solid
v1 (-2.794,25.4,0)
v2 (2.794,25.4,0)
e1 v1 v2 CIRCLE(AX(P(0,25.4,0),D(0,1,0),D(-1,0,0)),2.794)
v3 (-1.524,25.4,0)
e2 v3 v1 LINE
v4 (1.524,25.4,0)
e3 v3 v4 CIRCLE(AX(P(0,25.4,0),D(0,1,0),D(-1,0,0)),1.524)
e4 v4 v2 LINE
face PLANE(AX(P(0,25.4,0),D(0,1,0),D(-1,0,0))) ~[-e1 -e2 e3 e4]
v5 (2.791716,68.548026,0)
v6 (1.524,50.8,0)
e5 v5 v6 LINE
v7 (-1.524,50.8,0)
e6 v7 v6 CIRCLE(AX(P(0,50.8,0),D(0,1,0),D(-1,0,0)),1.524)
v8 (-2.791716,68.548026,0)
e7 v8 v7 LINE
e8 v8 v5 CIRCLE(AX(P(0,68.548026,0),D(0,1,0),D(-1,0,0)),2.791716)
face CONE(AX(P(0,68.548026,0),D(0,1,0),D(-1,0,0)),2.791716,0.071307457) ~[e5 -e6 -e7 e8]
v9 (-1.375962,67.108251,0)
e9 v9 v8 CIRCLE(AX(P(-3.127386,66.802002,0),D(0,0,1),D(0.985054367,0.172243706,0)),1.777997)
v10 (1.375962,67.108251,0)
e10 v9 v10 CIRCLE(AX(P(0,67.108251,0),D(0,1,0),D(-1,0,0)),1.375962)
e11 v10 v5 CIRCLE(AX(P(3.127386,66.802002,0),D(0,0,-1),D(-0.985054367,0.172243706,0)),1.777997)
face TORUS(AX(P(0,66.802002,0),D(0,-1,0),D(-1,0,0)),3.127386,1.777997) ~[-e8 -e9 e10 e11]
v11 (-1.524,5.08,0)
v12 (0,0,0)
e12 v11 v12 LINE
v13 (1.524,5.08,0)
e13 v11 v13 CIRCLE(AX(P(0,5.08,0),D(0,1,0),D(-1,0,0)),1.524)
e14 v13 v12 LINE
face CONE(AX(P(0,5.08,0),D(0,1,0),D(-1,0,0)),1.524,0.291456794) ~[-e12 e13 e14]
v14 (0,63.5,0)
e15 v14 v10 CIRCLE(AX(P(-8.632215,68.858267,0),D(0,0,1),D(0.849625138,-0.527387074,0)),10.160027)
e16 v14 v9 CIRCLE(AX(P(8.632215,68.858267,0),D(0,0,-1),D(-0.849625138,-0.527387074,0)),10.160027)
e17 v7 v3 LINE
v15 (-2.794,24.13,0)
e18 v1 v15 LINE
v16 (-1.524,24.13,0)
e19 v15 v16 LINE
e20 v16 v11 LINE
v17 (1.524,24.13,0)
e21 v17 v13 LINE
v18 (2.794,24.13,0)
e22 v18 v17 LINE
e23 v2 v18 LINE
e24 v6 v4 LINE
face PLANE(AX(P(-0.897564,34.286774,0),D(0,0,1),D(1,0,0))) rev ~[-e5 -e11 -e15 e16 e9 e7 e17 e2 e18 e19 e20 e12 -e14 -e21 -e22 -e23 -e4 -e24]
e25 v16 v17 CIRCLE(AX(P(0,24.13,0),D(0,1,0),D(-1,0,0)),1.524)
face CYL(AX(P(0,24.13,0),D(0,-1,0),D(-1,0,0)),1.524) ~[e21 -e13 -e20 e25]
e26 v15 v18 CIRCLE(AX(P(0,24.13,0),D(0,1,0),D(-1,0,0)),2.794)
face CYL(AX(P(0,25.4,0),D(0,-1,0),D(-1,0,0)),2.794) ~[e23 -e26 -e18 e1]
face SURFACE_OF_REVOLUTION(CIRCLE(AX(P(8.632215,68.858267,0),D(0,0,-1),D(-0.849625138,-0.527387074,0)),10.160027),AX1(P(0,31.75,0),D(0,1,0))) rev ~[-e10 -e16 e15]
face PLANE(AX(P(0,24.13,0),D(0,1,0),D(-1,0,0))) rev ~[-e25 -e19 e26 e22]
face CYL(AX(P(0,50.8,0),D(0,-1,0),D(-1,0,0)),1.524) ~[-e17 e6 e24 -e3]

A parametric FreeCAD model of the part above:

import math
import FreeCAD as App
import Part
import Sketcher
Q = App.Units.Quantity

doc = App.newDocument("Part")
body = doc.addObject("PartDesign::Body", "Body")

# Sketch on XY plane
sketch1 = body.newObject("Sketcher::SketchObject", "Sketch")
sketch1.AttachmentSupport = (doc.getObject("XY_Plane"), [""])
sketch1.MapMode = "FlatFace"
sketch1.addGeometry([
    Part.LineSegment(App.Vector(-1.524, 5.08, 0), App.Vector(0, 0, 0)),  # 0
    Part.LineSegment(App.Vector(0, 0, 0), App.Vector(0, 63.5, 0)),  # 1
    Part.ArcOfCircle(Part.Circle(App.Vector(8.632215, 68.858267, 0), App.Vector(0, 0, 1), 10.160027), math.radians(-170.081613), math.radians(-148.170921)),  # 2
    Part.ArcOfCircle(Part.Circle(App.Vector(-3.127386, 66.802002, 0), App.Vector(0, 0, 1), 1.777997), math.radians(9.918299), math.radians(79.117768)),  # 3
    Part.LineSegment(App.Vector(-2.791716, 68.548026, 0), App.Vector(-1.524, 50.8, 0)),  # 4
    Part.LineSegment(App.Vector(-1.524, 50.8, 0), App.Vector(-1.524, 25.4, 0)),  # 5
    Part.LineSegment(App.Vector(-1.524, 25.4, 0), App.Vector(-2.794, 25.4, 0)),  # 6
    Part.LineSegment(App.Vector(-2.794, 25.4, 0), App.Vector(-2.794, 24.13, 0)),  # 7
    Part.LineSegment(App.Vector(-2.794, 24.13, 0), App.Vector(-1.524, 24.13, 0)),  # 8
    Part.LineSegment(App.Vector(-1.524, 24.13, 0), App.Vector(-1.524, 5.08, 0)),  # 9
], False)
sketch1.addConstraint([
    Sketcher.Constraint("Coincident", 0, 2, 1, 1),
    Sketcher.Constraint("Coincident", 1, 2, 2, 2),
    Sketcher.Constraint("Tangent", 2, 1, 3, 1),
    Sketcher.Constraint("Coincident", 3, 2, 4, 1),
    Sketcher.Constraint("Coincident", 4, 2, 5, 1),
    Sketcher.Constraint("Coincident", 5, 2, 6, 1),
    Sketcher.Constraint("Coincident", 6, 2, 7, 1),
    Sketcher.Constraint("Coincident", 7, 2, 8, 1),
    Sketcher.Constraint("Coincident", 8, 2, 9, 1),
    Sketcher.Constraint("Coincident", 9, 2, 0, 1),
    Sketcher.Constraint("Vertical", 1),
    Sketcher.Constraint("Vertical", 5),
    Sketcher.Constraint("Horizontal", 6),
    Sketcher.Constraint("Vertical", 7),
    Sketcher.Constraint("Horizontal", 8),
    Sketcher.Constraint("Vertical", 9),
    Sketcher.Constraint("Coincident", 0, 2, -1, 1),
    Sketcher.Constraint("Vertical", 5, 2, 8, 2),
    Sketcher.Constraint("Equal", 8, 7),
    Sketcher.Constraint("DistanceY", 5, 2, 5, 1, Q("1 in")),
    Sketcher.Constraint("Radius", 3, Q("0.0699999 in")),
    Sketcher.Constraint("DistanceY", 1, 1, 1, 2, Q("2.5 in")),
    Sketcher.Constraint("DistanceY", -1, 1, 4, 2, Q("2 in")),
    Sketcher.Constraint("DistanceX", 6, 2, 6, 1, Q("0.05 in")),
    Sketcher.Constraint("DistanceY", 9, 2, 9, 1, Q("0.75 in")),
    Sketcher.Constraint("DistanceY", -1, 1, 3, 3, Q("2.6300001 in")),
    Sketcher.Constraint("DistanceX", 4, 2, -1, 1, Q("0.06 in")),
    Sketcher.Constraint("Radius", 2, Q("10.160027 mm")),
    Sketcher.Constraint("DistanceX", 3, 3, 2, 3, Q("11.7596 mm")),
    Sketcher.Constraint("DistanceX", 3, 3, 3, 2, Q("0.33567 mm")),
])
revolution = body.newObject("PartDesign::Revolution", "Revolution")
revolution.Profile = sketch1
revolution.ReferenceAxis = (sketch1, ["V_Axis"])
revolution.Angle = 180

doc.recompute()
